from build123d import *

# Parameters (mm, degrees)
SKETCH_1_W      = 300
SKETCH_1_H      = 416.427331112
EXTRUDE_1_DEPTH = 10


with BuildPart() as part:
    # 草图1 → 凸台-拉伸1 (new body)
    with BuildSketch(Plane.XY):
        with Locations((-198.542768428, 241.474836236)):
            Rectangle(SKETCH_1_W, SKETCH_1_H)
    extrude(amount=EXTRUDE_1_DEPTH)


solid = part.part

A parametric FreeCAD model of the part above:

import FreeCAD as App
import Part
import Sketcher
Q = App.Units.Quantity


def add_polygon(sketch, points):
    """Adds a closed chain of lines whose ends are joined by coincident constraints."""
    first, n = sketch.GeometryCount, len(points)
    for a, b in zip(points, points[1:] + points[:1]):
        sketch.addGeometry(Part.LineSegment(App.Vector(*a, 0), App.Vector(*b, 0)), False)
    for i in range(n):
        sketch.addConstraint(Sketcher.Constraint("Coincident", first + i, 2, first + (i + 1) % n, 1))

doc = App.newDocument("Part")
body = doc.addObject("PartDesign::Body", "Body")

# Sketch on XY plane
sketch1 = doc.addObject("Sketcher::SketchObject", "Sketch")
body.addObject(sketch1)
sketch1.AttachmentSupport = (doc.XY_Plane, [""])
sketch1.MapMode = "FlatFace"
add_polygon(sketch1, [(-348.542768, 449.688502), (-348.542768, 33.261171), (-48.542768, 33.261171), (-48.542768, 449.688502)])  # lines 0-3
sketch1.addConstraint([
    Sketcher.Constraint("Vertical", 0),
    Sketcher.Constraint("Horizontal", 1),
    Sketcher.Constraint("Vertical", 2),
    Sketcher.Constraint("Horizontal", 3),
    Sketcher.Constraint("DistanceX", 1, 1, 1, 2, Q("300 mm")),
    Sketcher.Constraint("DistanceY", 0, 2, 0, 1, Q("416.427331 mm")),
    Sketcher.Constraint("DistanceY", -1, 1, 2, 2, Q("449.688502 mm")),
    Sketcher.Constraint("DistanceX", 0, 2, -1, 1, Q("348.542768 mm")),
])
pad1 = doc.addObject("PartDesign::Pad", "Pad")
body.addObject(pad1)
pad1.Profile = sketch1
pad1.Length = 10

doc.recompute()
